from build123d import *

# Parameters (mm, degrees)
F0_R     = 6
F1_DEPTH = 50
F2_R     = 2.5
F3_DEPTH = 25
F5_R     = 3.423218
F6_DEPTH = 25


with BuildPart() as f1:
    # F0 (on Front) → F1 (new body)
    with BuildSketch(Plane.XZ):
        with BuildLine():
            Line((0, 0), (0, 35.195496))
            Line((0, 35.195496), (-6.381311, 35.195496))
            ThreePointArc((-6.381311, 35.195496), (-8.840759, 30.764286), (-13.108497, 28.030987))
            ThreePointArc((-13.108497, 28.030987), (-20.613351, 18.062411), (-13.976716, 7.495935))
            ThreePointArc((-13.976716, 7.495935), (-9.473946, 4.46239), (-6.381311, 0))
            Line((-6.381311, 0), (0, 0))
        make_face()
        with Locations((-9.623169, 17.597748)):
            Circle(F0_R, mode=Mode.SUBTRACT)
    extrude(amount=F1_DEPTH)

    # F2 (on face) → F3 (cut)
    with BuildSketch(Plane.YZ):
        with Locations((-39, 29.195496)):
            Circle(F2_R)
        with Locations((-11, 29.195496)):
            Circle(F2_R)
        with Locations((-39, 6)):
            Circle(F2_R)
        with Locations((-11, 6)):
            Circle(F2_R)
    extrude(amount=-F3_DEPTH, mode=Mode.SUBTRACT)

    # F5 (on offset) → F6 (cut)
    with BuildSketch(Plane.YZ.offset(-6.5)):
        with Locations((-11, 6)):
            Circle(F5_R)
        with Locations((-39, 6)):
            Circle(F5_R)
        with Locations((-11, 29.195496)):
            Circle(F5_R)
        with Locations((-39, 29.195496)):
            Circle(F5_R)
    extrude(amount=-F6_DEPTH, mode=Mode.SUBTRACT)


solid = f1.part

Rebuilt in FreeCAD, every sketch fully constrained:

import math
import FreeCAD as App
import Part
import Sketcher

doc = App.newDocument("Part")
body = doc.addObject("PartDesign::Body", "Body")

# Sketch on XZ plane
sketch1 = body.newObject("Sketcher::SketchObject", "Sketch")
sketch1.AttachmentSupport = (doc.getObject("XZ_Plane"), [""])
sketch1.MapMode = "FlatFace"
sketch1.addGeometry(Part.LineSegment(App.Vector(0, 0, 0), App.Vector(0, 35.195496, 0)), False)
sketch1.addGeometry(Part.LineSegment(App.Vector(0, 35.195496, 0), App.Vector(-6.381311, 35.195496, 0)), False)
sketch1.addGeometry(Part.ArcOfCircle(Part.Circle(App.Vector(-16.389342, 37.852102, 0), App.Vector(0, 0, 1), 10.354624), math.radians(-71.527569), math.radians(-14.866178)), False)
sketch1.addGeometry(Part.ArcOfCircle(Part.Circle(App.Vector(-9.62317, 17.597748, 0), App.Vector(0, 0, 1), 10.999999), math.radians(108.472406), math.radians(246.685564)), False)
sketch1.addGeometry(Part.ArcOfCircle(Part.Circle(App.Vector(-19.78813, -5.988661, 0), App.Vector(0, 0, 1), 14.683558), math.radians(24.069727), math.radians(66.685558)), False)
sketch1.addGeometry(Part.LineSegment(App.Vector(-6.381311, 0, 0), App.Vector(0, 0, 0)), False)
sketch1.addGeometry(Part.Circle(App.Vector(-9.623169, 17.597748, 0), App.Vector(0, 0, 1), 6), False)
sketch1.addConstraint(Sketcher.Constraint("Coincident", 0, 2, 1, 1))
sketch1.addConstraint(Sketcher.Constraint("Coincident", 1, 2, 2, 2))
sketch1.addConstraint(Sketcher.Constraint("Tangent", 2, 1, 3, 1))
sketch1.addConstraint(Sketcher.Constraint("Tangent", 3, 2, 4, 2))
sketch1.addConstraint(Sketcher.Constraint("Coincident", 4, 1, 5, 1))
sketch1.addConstraint(Sketcher.Constraint("Coincident", 5, 2, 0, 1))
sketch1.addConstraint(Sketcher.Constraint("Vertical", 0))
sketch1.addConstraint(Sketcher.Constraint("Horizontal", 1))
sketch1.addConstraint(Sketcher.Constraint("Horizontal", 5))
sketch1.addConstraint(Sketcher.Constraint("Coincident", 5, 2, -1, 1))
sketch1.addConstraint(Sketcher.Constraint("Coincident", 6, 3, 3, 3))
sketch1.addConstraint(Sketcher.Constraint("Vertical", 1, 2, 4, 1))
sketch1.addConstraint(Sketcher.Constraint("Diameter", 6, 12.0))
sketch1.addConstraint(Sketcher.Constraint("Radius", 3, 10.999999))
sketch1.addConstraint(Sketcher.Constraint("Radius", 2, 10.354624))
sketch1.addConstraint(Sketcher.Constraint("Radius", 4, 14.683558))
sketch1.addConstraint(Sketcher.Constraint("DistanceX", 1, 2, 1, 1, 6.381311))
sketch1.addConstraint(Sketcher.Constraint("DistanceY", 0, 1, 0, 2, 35.195496))
sketch1.addConstraint(Sketcher.Constraint("DistanceX", 3, 3, -1, 1, 9.62317))
sketch1.addConstraint(Sketcher.Constraint("DistanceX", 4, 3, -1, 1, 19.78813))
pad1 = body.newObject("PartDesign::Pad", "Pad")
pad1.Profile = sketch1
pad1.Length = 50

# Sketch on YZ plane
sketch2 = body.newObject("Sketcher::SketchObject", "Sketch001")
sketch2.AttachmentSupport = (doc.getObject("YZ_Plane"), [""])
sketch2.MapMode = "FlatFace"
sketch2.addGeometry(Part.Circle(App.Vector(-39, 29.195496, 0), App.Vector(0, 0, 1), 2.5), False)
sketch2.addGeometry(Part.Circle(App.Vector(-11, 29.195496, 0), App.Vector(0, 0, 1), 2.5), False)
sketch2.addGeometry(Part.Circle(App.Vector(-39, 6, 0), App.Vector(0, 0, 1), 2.5), False)
sketch2.addGeometry(Part.Circle(App.Vector(-11, 6, 0), App.Vector(0, 0, 1), 2.5), False)
sketch2.addConstraint(Sketcher.Constraint("Equal", 0, 1))
sketch2.addConstraint(Sketcher.Constraint("Equal", 1, 2))
sketch2.addConstraint(Sketcher.Constraint("Equal", 2, 3))
sketch2.addConstraint(Sketcher.Constraint("Horizontal", 0, 3, 1, 3))
sketch2.addConstraint(Sketcher.Constraint("Horizontal", 2, 3, 3, 3))
sketch2.addConstraint(Sketcher.Constraint("Vertical", 0, 3, 2, 3))
sketch2.addConstraint(Sketcher.Constraint("Vertical", 1, 3, 3, 3))
sketch2.addConstraint(Sketcher.Constraint("Diameter", 0, 5.0))
sketch2.addConstraint(Sketcher.Constraint("DistanceX", 0, 3, -1, 1, 39.0))
sketch2.addConstraint(Sketcher.Constraint("DistanceX", 1, 3, -1, 1, 11.0))
sketch2.addConstraint(Sketcher.Constraint("DistanceY", -1, 1, 2, 3, 6.0))
sketch2.addConstraint(Sketcher.Constraint("DistanceY", -1, 1, 0, 3, 29.195496))
pocket1 = body.newObject("PartDesign::Pocket", "Pocket")
pocket1.Profile = sketch2
pocket1.Length = 25

# Sketch on YZ plane
sketch3 = body.newObject("Sketcher::SketchObject", "Sketch002")
sketch3.AttachmentSupport = (doc.getObject("YZ_Plane"), [""])
sketch3.MapMode = "FlatFace"
sketch3.AttachmentOffset = App.Placement(App.Vector(0, 0, -6.5), App.Rotation())
sketch3.addGeometry(Part.Circle(App.Vector(-11, 6, 0), App.Vector(0, 0, 1), 3.423218), False)
sketch3.addGeometry(Part.Circle(App.Vector(-39, 6, 0), App.Vector(0, 0, 1), 3.423218), False)
sketch3.addGeometry(Part.Circle(App.Vector(-11, 29.195496, 0), App.Vector(0, 0, 1), 3.423218), False)
sketch3.addGeometry(Part.Circle(App.Vector(-39, 29.195496, 0), App.Vector(0, 0, 1), 3.423218), False)
sketch3.addConstraint(Sketcher.Constraint("Equal", 0, 1))
sketch3.addConstraint(Sketcher.Constraint("Equal", 1, 2))
sketch3.addConstraint(Sketcher.Constraint("Equal", 2, 3))
sketch3.addConstraint(Sketcher.Constraint("Horizontal", 0, 3, 1, 3))
sketch3.addConstraint(Sketcher.Constraint("Horizontal", 2, 3, 3, 3))
sketch3.addConstraint(Sketcher.Constraint("Vertical", 0, 3, 2, 3))
sketch3.addConstraint(Sketcher.Constraint("Vertical", 1, 3, 3, 3))
sketch3.addConstraint(Sketcher.Constraint("DistanceX", 0, 3, -1, 1, 11.0))
sketch3.addConstraint(Sketcher.Constraint("DistanceY", -1, 1, 0, 3, 6.0))
sketch3.addConstraint(Sketcher.Constraint("DistanceX", 1, 3, -1, 1, 39.0))
sketch3.addConstraint(Sketcher.Constraint("Diameter", 0, 6.846436))
sketch3.addConstraint(Sketcher.Constraint("DistanceY", -1, 1, 2, 3, 29.195496))
pocket2 = body.newObject("PartDesign::Pocket", "Pocket001")
pocket2.Profile = sketch3
pocket2.Length = 25

doc.recompute()
